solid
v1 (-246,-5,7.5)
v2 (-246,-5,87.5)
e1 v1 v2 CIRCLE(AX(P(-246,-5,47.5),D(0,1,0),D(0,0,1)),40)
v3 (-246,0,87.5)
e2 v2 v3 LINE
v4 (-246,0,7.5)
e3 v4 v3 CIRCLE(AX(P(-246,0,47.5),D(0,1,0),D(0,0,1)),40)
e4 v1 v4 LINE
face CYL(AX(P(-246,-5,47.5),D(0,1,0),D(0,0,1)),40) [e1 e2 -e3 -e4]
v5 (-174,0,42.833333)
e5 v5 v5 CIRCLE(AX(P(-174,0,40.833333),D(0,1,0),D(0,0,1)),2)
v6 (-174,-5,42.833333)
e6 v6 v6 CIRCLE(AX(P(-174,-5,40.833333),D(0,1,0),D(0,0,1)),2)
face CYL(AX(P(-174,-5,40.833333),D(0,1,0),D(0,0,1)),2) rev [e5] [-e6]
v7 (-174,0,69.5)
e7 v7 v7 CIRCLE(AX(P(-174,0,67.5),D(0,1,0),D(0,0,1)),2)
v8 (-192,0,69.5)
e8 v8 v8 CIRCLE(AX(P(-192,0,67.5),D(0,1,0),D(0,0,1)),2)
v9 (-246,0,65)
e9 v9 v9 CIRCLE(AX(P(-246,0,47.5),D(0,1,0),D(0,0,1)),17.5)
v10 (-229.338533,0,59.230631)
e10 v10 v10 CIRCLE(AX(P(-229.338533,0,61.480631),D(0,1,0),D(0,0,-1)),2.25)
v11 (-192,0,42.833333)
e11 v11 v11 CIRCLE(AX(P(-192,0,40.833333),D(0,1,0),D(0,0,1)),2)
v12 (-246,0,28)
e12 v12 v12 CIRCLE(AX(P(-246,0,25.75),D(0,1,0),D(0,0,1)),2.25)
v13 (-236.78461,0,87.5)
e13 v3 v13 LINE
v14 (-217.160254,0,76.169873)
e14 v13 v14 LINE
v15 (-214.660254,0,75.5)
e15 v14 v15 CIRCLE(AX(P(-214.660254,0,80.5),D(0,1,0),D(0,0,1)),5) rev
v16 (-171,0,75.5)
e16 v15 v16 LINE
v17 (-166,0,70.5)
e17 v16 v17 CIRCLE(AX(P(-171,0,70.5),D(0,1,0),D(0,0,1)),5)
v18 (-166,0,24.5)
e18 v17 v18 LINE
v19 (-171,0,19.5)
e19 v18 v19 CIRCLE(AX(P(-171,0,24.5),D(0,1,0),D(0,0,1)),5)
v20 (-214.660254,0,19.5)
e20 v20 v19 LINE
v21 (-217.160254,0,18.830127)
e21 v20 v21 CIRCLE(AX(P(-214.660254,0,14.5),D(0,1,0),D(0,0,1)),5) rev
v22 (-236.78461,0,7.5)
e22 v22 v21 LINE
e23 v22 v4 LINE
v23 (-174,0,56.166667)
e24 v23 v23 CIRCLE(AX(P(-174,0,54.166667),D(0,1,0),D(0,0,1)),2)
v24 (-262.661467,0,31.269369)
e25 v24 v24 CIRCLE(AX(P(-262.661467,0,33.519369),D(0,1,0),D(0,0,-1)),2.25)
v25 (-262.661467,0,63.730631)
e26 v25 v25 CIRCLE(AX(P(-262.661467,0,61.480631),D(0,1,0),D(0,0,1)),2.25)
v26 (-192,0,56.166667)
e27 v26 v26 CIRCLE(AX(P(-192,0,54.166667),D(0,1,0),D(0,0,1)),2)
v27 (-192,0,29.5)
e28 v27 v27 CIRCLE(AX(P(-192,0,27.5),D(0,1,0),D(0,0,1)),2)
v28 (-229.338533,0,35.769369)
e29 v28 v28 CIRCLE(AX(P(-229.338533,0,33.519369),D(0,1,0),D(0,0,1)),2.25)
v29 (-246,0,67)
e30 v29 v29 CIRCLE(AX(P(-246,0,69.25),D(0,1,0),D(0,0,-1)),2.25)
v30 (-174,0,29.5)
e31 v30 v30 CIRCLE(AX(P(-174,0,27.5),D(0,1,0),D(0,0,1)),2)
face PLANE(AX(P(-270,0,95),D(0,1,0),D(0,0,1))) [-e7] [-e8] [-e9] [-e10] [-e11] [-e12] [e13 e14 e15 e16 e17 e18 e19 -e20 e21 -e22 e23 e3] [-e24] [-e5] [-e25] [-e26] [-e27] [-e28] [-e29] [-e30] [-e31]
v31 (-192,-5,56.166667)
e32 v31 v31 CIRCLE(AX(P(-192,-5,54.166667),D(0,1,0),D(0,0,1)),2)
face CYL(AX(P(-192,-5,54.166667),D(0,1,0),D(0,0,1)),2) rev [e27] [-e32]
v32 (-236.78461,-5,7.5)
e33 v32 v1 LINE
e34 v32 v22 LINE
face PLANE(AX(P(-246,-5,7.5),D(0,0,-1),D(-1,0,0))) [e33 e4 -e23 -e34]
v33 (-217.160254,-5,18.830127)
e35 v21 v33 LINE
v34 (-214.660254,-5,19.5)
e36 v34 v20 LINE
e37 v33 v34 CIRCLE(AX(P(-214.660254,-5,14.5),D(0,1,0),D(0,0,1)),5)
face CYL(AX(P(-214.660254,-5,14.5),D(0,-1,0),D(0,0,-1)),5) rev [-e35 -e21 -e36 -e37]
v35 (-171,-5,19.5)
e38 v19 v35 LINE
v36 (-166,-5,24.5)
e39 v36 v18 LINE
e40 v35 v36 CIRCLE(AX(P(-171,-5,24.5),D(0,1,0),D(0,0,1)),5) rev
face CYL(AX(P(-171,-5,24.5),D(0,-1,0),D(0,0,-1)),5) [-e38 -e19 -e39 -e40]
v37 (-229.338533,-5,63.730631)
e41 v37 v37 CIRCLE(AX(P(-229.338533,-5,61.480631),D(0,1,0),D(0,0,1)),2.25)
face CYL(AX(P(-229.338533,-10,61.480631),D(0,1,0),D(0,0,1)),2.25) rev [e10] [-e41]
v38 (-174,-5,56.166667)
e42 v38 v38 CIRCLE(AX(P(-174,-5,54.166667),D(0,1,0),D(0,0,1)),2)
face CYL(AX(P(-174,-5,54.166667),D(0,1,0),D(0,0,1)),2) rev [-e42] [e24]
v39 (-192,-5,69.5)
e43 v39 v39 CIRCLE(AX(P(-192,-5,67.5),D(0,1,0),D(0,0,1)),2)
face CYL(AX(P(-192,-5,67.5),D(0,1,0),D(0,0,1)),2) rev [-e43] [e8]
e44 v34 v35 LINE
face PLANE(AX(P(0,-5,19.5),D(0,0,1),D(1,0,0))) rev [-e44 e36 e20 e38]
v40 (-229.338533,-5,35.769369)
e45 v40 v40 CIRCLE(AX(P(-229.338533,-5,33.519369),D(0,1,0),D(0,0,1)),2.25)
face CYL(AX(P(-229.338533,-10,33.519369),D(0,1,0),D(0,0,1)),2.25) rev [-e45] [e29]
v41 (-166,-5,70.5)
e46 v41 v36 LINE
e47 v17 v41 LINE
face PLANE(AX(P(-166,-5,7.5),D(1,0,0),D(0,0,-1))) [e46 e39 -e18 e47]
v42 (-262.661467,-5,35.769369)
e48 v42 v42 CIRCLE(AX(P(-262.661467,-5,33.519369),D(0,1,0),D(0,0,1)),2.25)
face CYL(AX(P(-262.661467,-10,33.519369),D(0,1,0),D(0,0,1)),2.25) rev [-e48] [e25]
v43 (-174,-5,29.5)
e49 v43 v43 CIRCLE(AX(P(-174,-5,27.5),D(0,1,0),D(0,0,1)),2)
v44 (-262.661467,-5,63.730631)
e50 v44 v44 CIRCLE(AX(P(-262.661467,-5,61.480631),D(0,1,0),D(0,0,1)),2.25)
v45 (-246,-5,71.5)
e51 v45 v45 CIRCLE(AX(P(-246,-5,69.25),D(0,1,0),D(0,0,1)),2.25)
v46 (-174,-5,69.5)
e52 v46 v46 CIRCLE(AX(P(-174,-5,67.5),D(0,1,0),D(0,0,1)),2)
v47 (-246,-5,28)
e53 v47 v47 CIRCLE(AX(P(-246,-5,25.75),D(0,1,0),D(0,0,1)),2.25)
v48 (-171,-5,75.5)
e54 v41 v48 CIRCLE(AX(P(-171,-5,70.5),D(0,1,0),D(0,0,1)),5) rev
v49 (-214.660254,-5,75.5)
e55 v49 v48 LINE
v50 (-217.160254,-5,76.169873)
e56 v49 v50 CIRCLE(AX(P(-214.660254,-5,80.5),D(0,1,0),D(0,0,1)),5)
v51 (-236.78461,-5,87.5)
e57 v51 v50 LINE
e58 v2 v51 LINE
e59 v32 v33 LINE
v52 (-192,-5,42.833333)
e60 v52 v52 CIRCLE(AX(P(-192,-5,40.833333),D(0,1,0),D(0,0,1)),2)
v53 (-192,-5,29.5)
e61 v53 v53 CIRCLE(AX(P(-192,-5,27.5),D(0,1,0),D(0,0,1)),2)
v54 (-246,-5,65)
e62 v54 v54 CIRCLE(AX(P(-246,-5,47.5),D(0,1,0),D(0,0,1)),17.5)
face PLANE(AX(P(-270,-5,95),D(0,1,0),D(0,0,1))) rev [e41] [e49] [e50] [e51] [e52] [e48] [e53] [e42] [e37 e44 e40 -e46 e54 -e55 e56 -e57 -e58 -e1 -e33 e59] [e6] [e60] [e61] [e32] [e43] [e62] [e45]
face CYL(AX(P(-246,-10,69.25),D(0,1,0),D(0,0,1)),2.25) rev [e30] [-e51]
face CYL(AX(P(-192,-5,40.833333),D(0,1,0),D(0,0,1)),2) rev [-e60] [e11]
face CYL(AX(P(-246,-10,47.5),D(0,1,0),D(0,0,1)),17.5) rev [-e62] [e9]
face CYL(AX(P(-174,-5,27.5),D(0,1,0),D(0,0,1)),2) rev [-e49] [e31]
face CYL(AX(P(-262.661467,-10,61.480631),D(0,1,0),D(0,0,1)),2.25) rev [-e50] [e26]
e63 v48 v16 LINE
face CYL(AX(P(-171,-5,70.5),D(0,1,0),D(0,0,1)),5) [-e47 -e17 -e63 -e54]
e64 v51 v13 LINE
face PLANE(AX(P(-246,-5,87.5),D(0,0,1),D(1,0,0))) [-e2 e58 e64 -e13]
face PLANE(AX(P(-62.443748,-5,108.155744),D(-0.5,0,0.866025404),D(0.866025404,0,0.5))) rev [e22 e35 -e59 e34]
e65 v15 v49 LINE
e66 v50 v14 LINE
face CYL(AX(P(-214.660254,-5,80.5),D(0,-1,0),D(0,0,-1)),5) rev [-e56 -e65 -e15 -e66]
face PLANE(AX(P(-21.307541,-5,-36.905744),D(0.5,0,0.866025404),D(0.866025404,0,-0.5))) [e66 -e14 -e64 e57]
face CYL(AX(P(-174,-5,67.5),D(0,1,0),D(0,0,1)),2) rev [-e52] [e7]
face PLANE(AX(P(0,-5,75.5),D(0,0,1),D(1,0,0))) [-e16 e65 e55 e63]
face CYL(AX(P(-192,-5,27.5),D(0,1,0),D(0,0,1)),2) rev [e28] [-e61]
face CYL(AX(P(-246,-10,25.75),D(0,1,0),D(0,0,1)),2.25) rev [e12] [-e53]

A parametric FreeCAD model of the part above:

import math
import FreeCAD as App
import Part
import Sketcher
from FreeCAD import Vector
Q = App.Units.Quantity


def edges_at(feature, points):
    """Names of the edges that pass closest to the given points."""
    edges = feature.Shape.Edges
    near = lambda p: min(range(len(edges)), key=lambda i: edges[i].distToShape(Part.Vertex(*p))[0])
    return sorted({f"Edge{near(p) + 1}" for p in points})


def add_polygon(sketch, points):
    """Adds a closed chain of lines whose ends are joined by coincident constraints."""
    first, n = sketch.GeometryCount, len(points)
    for a, b in zip(points, points[1:] + points[:1]):
        sketch.addGeometry(Part.LineSegment(App.Vector(*a, 0), App.Vector(*b, 0)), False)
    for i in range(n):
        sketch.addConstraint(Sketcher.Constraint("Coincident", first + i, 2, first + (i + 1) % n, 1))

doc = App.newDocument("Part")
body = doc.addObject("PartDesign::Body", "Body")

sketch1 = doc.addObject("Sketcher::SketchObject", "Sketch")
body.addObject(sketch1)
sketch1.AttachmentSupport = (doc.XY_Plane, [""])
sketch1.MapMode = "FlatFace"
add_polygon(sketch1, [(-270, 0), (-270, -5), (0, -5), (0, 0)])
sketch1.addConstraint([
    Sketcher.Constraint("Vertical", 0),
    Sketcher.Constraint("Horizontal", 1),
    Sketcher.Constraint("Vertical", 2),
    Sketcher.Constraint("Horizontal", 3),
    Sketcher.Constraint("Coincident", 2, 2, -1, 1),
    Sketcher.Constraint("DistanceX", 1, 1, 1, 2, 270.0),
    Sketcher.Constraint("DistanceY", 0, 2, 0, 1, 5.0),
])
pad1 = doc.addObject("PartDesign::Pad", "Pad")
body.addObject(pad1)
pad1.Profile = sketch1
pad1.Length = 95

sketch2 = doc.addObject("Sketcher::SketchObject", "Sketch001")
body.addObject(sketch2)
sketch2.AttachmentSupport = (doc.XZ_Plane, [""])
sketch2.MapMode = "FlatFace"
sketch2.addGeometry([
    Part.Circle(Vector(-246, 25.8, 0), Vector(0, 0, 1), 2.2),
    Part.Circle(Vector(-229.3, 33.5, 0), Vector(0, 0, 1), 2.2),
    Part.Circle(Vector(-262.7, 33.5, 0), Vector(0, 0, 1), 2.2),
    Part.Circle(Vector(-262.7, 61.5, 0), Vector(0, 0, 1), 2.2),
    Part.Circle(Vector(-246, 69.2, 0), Vector(0, 0, 1), 2.2),
    Part.Circle(Vector(-229.3, 61.5, 0), Vector(0, 0, 1), 2.2),
    Part.Circle(Vector(-246, 47.5, 0), Vector(0, 0, 1), 17.5),
], False)
sketch2.addConstraint([
    Sketcher.Constraint("Equal", 0, 1),
    Sketcher.Constraint("Equal", 1, 2),
    Sketcher.Constraint("Equal", 2, 3),
    Sketcher.Constraint("Equal", 3, 4),
    Sketcher.Constraint("Equal", 4, 5),
    Sketcher.Constraint("Horizontal", 1, 3, 2, 3),
    Sketcher.Constraint("Horizontal", 3, 3, 5, 3),
    Sketcher.Constraint("Vertical", 2, 3, 3, 3),
    Sketcher.Constraint("Vertical", 0, 3, 4, 3),
    Sketcher.Constraint("Vertical", 1, 3, 5, 3),
    Sketcher.Constraint("Vertical", 4, 3, 6, 3),
    Sketcher.Constraint("Diameter", 6, 35.0),
    Sketcher.Constraint("Diameter", 0, 4.5),
    Sketcher.Constraint("DistanceX", 0, 3, -1, 1, 246.0),
    Sketcher.Constraint("DistanceY", -1, 1, 6, 3, 47.5),
    Sketcher.Constraint("DistanceY", 0, 3, 4, 3, 43.5),
    Sketcher.Constraint("DistanceY", -1, 1, 0, 3, 25.75),
    Sketcher.Constraint("DistanceY", -1, 1, 1, 3, 33.519369),
    Sketcher.Constraint("DistanceY", -1, 1, 3, 3, 61.480631),
    Sketcher.Constraint("DistanceX", 1, 3, -1, 1, 229.338533),
    Sketcher.Constraint("DistanceX", 2, 3, -1, 1, 262.661467),
])
pocket1 = doc.addObject("PartDesign::Pocket", "Pocket")
body.addObject(pocket1)
pocket1.Profile = sketch2
pocket1.Length = 10
pocket1.Reversed = True

sketch3 = doc.addObject("Sketcher::SketchObject", "Sketch002")
body.addObject(sketch3)
sketch3.AttachmentSupport = (doc.XZ_Plane, [""])
sketch3.MapMode = "FlatFace"
add_polygon(sketch3, [(-270, 75), (-270, 95), (-200, 95), (-200, 75)])
add_polygon(sketch3, [(-270, 0), (-270, 20), (-200, 20), (-200, 0)])
sketch3.addGeometry(Part.LineSegment(Vector(-190, 10, 0), Vector(-190, 34.8, 0)), False)
sketch3.addGeometry(Part.ArcOfCircle(Part.Circle(Vector(-187, 34.8, 0), Vector(0, 0, 1), 3), math.radians(45), math.radians(180)), False)
sketch3.addGeometry(Part.LineSegment(Vector(-184.9, 36.9, 0), Vector(-160.1, 12.1, 0)), False)
sketch3.addGeometry(Part.ArcOfCircle(Part.Circle(Vector(-162.2, 10, 0), Vector(0, 0, 1), 3), math.radians(-90), math.radians(45)), False)
sketch3.addGeometry(Part.LineSegment(Vector(-162.2, 7, 0), Vector(-187, 7, 0)), False)
sketch3.addGeometry(Part.ArcOfCircle(Part.Circle(Vector(-187, 10, 0), Vector(0, 0, 1), 3), math.radians(180), math.radians(270)), False)
sketch3.addGeometry(Part.LineSegment(Vector(-154.1, 12.1, 0), Vector(-178.9, 36.9, 0)), False)
sketch3.addGeometry(Part.ArcOfCircle(Part.Circle(Vector(-176.8, 39, 0), Vector(0, 0, 1), 3), math.radians(90), math.radians(225)), False)
sketch3.addGeometry(Part.LineSegment(Vector(-176.8, 42, 0), Vector(-152, 42, 0)), False)
sketch3.addGeometry(Part.ArcOfCircle(Part.Circle(Vector(-152, 39, 0), Vector(0, 0, 1), 3), math.radians(0), math.radians(90)), False)
sketch3.addGeometry(Part.LineSegment(Vector(-149, 39, 0), Vector(-149, 14.2, 0)), False)
sketch3.addGeometry(Part.ArcOfCircle(Part.Circle(Vector(-152, 14.2, 0), Vector(0, 0, 1), 3), math.radians(-135), math.radians(0)), False)
sketch3.addGeometry(Part.LineSegment(Vector(-112.2, 7, 0), Vector(-137, 7, 0)), False)
sketch3.addGeometry(Part.ArcOfCircle(Part.Circle(Vector(-137, 10, 0), Vector(0, 0, 1), 3), math.radians(180), math.radians(270)), False)
sketch3.addGeometry(Part.LineSegment(Vector(-140, 10, 0), Vector(-140, 34.8, 0)), False)
sketch3.addGeometry(Part.ArcOfCircle(Part.Circle(Vector(-137, 34.8, 0), Vector(0, 0, 1), 3), math.radians(45), math.radians(180)), False)
sketch3.addGeometry(Part.LineSegment(Vector(-134.9, 36.9, 0), Vector(-110.1, 12.1, 0)), False)
sketch3.addGeometry(Part.ArcOfCircle(Part.Circle(Vector(-112.2, 10, 0), Vector(0, 0, 1), 3), math.radians(-90), math.radians(45)), False)
sketch3.addGeometry(Part.LineSegment(Vector(-99, 39, 0), Vector(-99, 14.2, 0)), False)
sketch3.addGeometry(Part.ArcOfCircle(Part.Circle(Vector(-102, 14.2, 0), Vector(0, 0, 1), 3), math.radians(-135), math.radians(0)), False)
sketch3.addGeometry(Part.LineSegment(Vector(-104.1, 12.1, 0), Vector(-128.9, 36.9, 0)), False)
sketch3.addGeometry(Part.ArcOfCircle(Part.Circle(Vector(-126.8, 39, 0), Vector(0, 0, 1), 3), math.radians(90), math.radians(225)), False)
sketch3.addGeometry(Part.LineSegment(Vector(-126.8, 42, 0), Vector(-102, 42, 0)), False)
sketch3.addGeometry(Part.ArcOfCircle(Part.Circle(Vector(-102, 39, 0), Vector(0, 0, 1), 3), math.radians(0), math.radians(90)), False)
sketch3.addGeometry(Part.LineSegment(Vector(-112.2, 52, 0), Vector(-137, 52, 0)), False)
sketch3.addGeometry(Part.ArcOfCircle(Part.Circle(Vector(-137, 55, 0), Vector(0, 0, 1), 3), math.radians(180), math.radians(270)), False)
sketch3.addGeometry(Part.LineSegment(Vector(-140, 55, 0), Vector(-140, 79.8, 0)), False)
sketch3.addGeometry(Part.ArcOfCircle(Part.Circle(Vector(-137, 79.8, 0), Vector(0, 0, 1), 3), math.radians(45), math.radians(180)), False)
sketch3.addGeometry(Part.LineSegment(Vector(-134.9, 81.9, 0), Vector(-110.1, 57.1, 0)), False)
sketch3.addGeometry(Part.ArcOfCircle(Part.Circle(Vector(-112.2, 55, 0), Vector(0, 0, 1), 3), math.radians(-90), math.radians(45)), False)
sketch3.addGeometry(Part.LineSegment(Vector(-99, 84, 0), Vector(-99, 59.2, 0)), False)
sketch3.addGeometry(Part.ArcOfCircle(Part.Circle(Vector(-102, 59.2, 0), Vector(0, 0, 1), 3), math.radians(-135), math.radians(0)), False)
sketch3.addGeometry(Part.LineSegment(Vector(-104.1, 57.1, 0), Vector(-128.9, 81.9, 0)), False)
sketch3.addGeometry(Part.ArcOfCircle(Part.Circle(Vector(-126.8, 84, 0), Vector(0, 0, 1), 3), math.radians(90), math.radians(225)), False)
sketch3.addGeometry(Part.LineSegment(Vector(-126.8, 87, 0), Vector(-102, 87, 0)), False)
sketch3.addGeometry(Part.ArcOfCircle(Part.Circle(Vector(-102, 84, 0), Vector(0, 0, 1), 3), math.radians(0), math.radians(90)), False)
sketch3.addGeometry(Part.LineSegment(Vector(-162.2, 52, 0), Vector(-187, 52, 0)), False)
sketch3.addGeometry(Part.ArcOfCircle(Part.Circle(Vector(-187, 55, 0), Vector(0, 0, 1), 3), math.radians(180), math.radians(270)), False)
sketch3.addGeometry(Part.LineSegment(Vector(-190, 55, 0), Vector(-190, 79.8, 0)), False)
sketch3.addGeometry(Part.ArcOfCircle(Part.Circle(Vector(-187, 79.8, 0), Vector(0, 0, 1), 3), math.radians(45), math.radians(180)), False)
sketch3.addGeometry(Part.LineSegment(Vector(-184.9, 81.9, 0), Vector(-160.1, 57.1, 0)), False)
sketch3.addGeometry(Part.ArcOfCircle(Part.Circle(Vector(-162.2, 55, 0), Vector(0, 0, 1), 3), math.radians(-90), math.radians(45)), False)
sketch3.addGeometry(Part.LineSegment(Vector(-149, 84, 0), Vector(-149, 59.2, 0)), False)
sketch3.addGeometry(Part.ArcOfCircle(Part.Circle(Vector(-152, 59.2, 0), Vector(0, 0, 1), 3), math.radians(-135), math.radians(0)), False)
sketch3.addGeometry(Part.LineSegment(Vector(-154.1, 57.1, 0), Vector(-178.9, 81.9, 0)), False)
sketch3.addGeometry(Part.ArcOfCircle(Part.Circle(Vector(-176.8, 84, 0), Vector(0, 0, 1), 3), math.radians(90), math.radians(225)), False)
sketch3.addGeometry(Part.LineSegment(Vector(-176.8, 87, 0), Vector(-152, 87, 0)), False)
sketch3.addGeometry(Part.ArcOfCircle(Part.Circle(Vector(-152, 84, 0), Vector(0, 0, 1), 3), math.radians(0), math.radians(90)), False)
sketch3.addGeometry(Part.LineSegment(Vector(-62.2, 7, 0), Vector(-87, 7, 0)), False)
sketch3.addGeometry(Part.ArcOfCircle(Part.Circle(Vector(-87, 10, 0), Vector(0, 0, 1), 3), math.radians(180), math.radians(270)), False)
sketch3.addGeometry(Part.LineSegment(Vector(-90, 10, 0), Vector(-90, 34.8, 0)), False)
sketch3.addGeometry(Part.ArcOfCircle(Part.Circle(Vector(-87, 34.8, 0), Vector(0, 0, 1), 3), math.radians(45), math.radians(180)), False)
sketch3.addGeometry(Part.LineSegment(Vector(-84.9, 36.9, 0), Vector(-60.1, 12.1, 0)), False)
sketch3.addGeometry(Part.ArcOfCircle(Part.Circle(Vector(-62.2, 10, 0), Vector(0, 0, 1), 3), math.radians(-90), math.radians(45)), False)
sketch3.addGeometry(Part.LineSegment(Vector(-49, 39, 0), Vector(-49, 14.2, 0)), False)
sketch3.addGeometry(Part.ArcOfCircle(Part.Circle(Vector(-52, 14.2, 0), Vector(0, 0, 1), 3), math.radians(-135), math.radians(0)), False)
sketch3.addGeometry(Part.LineSegment(Vector(-54.1, 12.1, 0), Vector(-78.9, 36.9, 0)), False)
sketch3.addGeometry(Part.ArcOfCircle(Part.Circle(Vector(-76.8, 39, 0), Vector(0, 0, 1), 3), math.radians(90), math.radians(225)), False)
sketch3.addGeometry(Part.LineSegment(Vector(-76.8, 42, 0), Vector(-52, 42, 0)), False)
sketch3.addGeometry(Part.ArcOfCircle(Part.Circle(Vector(-52, 39, 0), Vector(0, 0, 1), 3), math.radians(0), math.radians(90)), False)
sketch3.addGeometry(Part.LineSegment(Vector(-62.2, 52, 0), Vector(-87, 52, 0)), False)
sketch3.addGeometry(Part.ArcOfCircle(Part.Circle(Vector(-87, 55, 0), Vector(0, 0, 1), 3), math.radians(180), math.radians(270)), False)
sketch3.addGeometry(Part.LineSegment(Vector(-90, 55, 0), Vector(-90, 79.8, 0)), False)
sketch3.addGeometry(Part.ArcOfCircle(Part.Circle(Vector(-87, 79.8, 0), Vector(0, 0, 1), 3), math.radians(45), math.radians(180)), False)
sketch3.addGeometry(Part.LineSegment(Vector(-84.9, 81.9, 0), Vector(-60.1, 57.1, 0)), False)
sketch3.addGeometry(Part.ArcOfCircle(Part.Circle(Vector(-62.2, 55, 0), Vector(0, 0, 1), 3), math.radians(-90), math.radians(45)), False)
sketch3.addGeometry(Part.LineSegment(Vector(-49, 84, 0), Vector(-49, 59.2, 0)), False)
sketch3.addGeometry(Part.ArcOfCircle(Part.Circle(Vector(-52, 59.2, 0), Vector(0, 0, 1), 3), math.radians(-135), math.radians(0)), False)
sketch3.addGeometry(Part.LineSegment(Vector(-54.1, 57.1, 0), Vector(-78.9, 81.9, 0)), False)
sketch3.addGeometry(Part.ArcOfCircle(Part.Circle(Vector(-76.8, 84, 0), Vector(0, 0, 1), 3), math.radians(90), math.radians(225)), False)
sketch3.addGeometry(Part.LineSegment(Vector(-76.8, 87, 0), Vector(-52, 87, 0)), False)
sketch3.addGeometry(Part.ArcOfCircle(Part.Circle(Vector(-52, 84, 0), Vector(0, 0, 1), 3), math.radians(0), math.radians(90)), False)
sketch3.addConstraint([
    Sketcher.Constraint("Tangent", 8, 2, 9, 2),
    Sketcher.Constraint("Tangent", 9, 1, 10, 1),
    Sketcher.Constraint("Tangent", 10, 2, 11, 2),
    Sketcher.Constraint("Tangent", 11, 1, 12, 1),
    Sketcher.Constraint("Tangent", 12, 2, 13, 2),
    Sketcher.Constraint("Tangent", 13, 1, 8, 1),
    Sketcher.Constraint("Tangent", 14, 2, 15, 2),
    Sketcher.Constraint("Tangent", 15, 1, 16, 1),
    Sketcher.Constraint("Tangent", 16, 2, 17, 2),
    Sketcher.Constraint("Tangent", 17, 1, 18, 1),
    Sketcher.Constraint("Tangent", 18, 2, 19, 2),
    Sketcher.Constraint("Tangent", 19, 1, 14, 1),
    Sketcher.Constraint("Tangent", 20, 2, 21, 2),
    Sketcher.Constraint("Tangent", 21, 1, 22, 1),
    Sketcher.Constraint("Tangent", 22, 2, 23, 2),
    Sketcher.Constraint("Tangent", 23, 1, 24, 1),
    Sketcher.Constraint("Tangent", 24, 2, 25, 2),
    Sketcher.Constraint("Tangent", 25, 1, 20, 1),
    Sketcher.Constraint("Tangent", 26, 2, 27, 2),
    Sketcher.Constraint("Tangent", 27, 1, 28, 1),
    Sketcher.Constraint("Tangent", 28, 2, 29, 2),
    Sketcher.Constraint("Tangent", 29, 1, 30, 1),
    Sketcher.Constraint("Tangent", 30, 2, 31, 2),
    Sketcher.Constraint("Tangent", 31, 1, 26, 1),
    Sketcher.Constraint("Tangent", 32, 2, 33, 2),
    Sketcher.Constraint("Tangent", 33, 1, 34, 1),
    Sketcher.Constraint("Tangent", 34, 2, 35, 2),
    Sketcher.Constraint("Tangent", 35, 1, 36, 1),
    Sketcher.Constraint("Tangent", 36, 2, 37, 2),
    Sketcher.Constraint("Tangent", 37, 1, 32, 1),
    Sketcher.Constraint("Tangent", 38, 2, 39, 2),
    Sketcher.Constraint("Tangent", 39, 1, 40, 1),
    Sketcher.Constraint("Tangent", 40, 2, 41, 2),
    Sketcher.Constraint("Tangent", 41, 1, 42, 1),
    Sketcher.Constraint("Tangent", 42, 2, 43, 2),
    Sketcher.Constraint("Tangent", 43, 1, 38, 1),
    Sketcher.Constraint("Tangent", 44, 2, 45, 2),
    Sketcher.Constraint("Tangent", 45, 1, 46, 1),
    Sketcher.Constraint("Tangent", 46, 2, 47, 2),
    Sketcher.Constraint("Tangent", 47, 1, 48, 1),
    Sketcher.Constraint("Tangent", 48, 2, 49, 2),
    Sketcher.Constraint("Tangent", 49, 1, 44, 1),
    Sketcher.Constraint("Tangent", 50, 2, 51, 2),
    Sketcher.Constraint("Tangent", 51, 1, 52, 1),
    Sketcher.Constraint("Tangent", 52, 2, 53, 2),
    Sketcher.Constraint("Tangent", 53, 1, 54, 1),
    Sketcher.Constraint("Tangent", 54, 2, 55, 2),
    Sketcher.Constraint("Tangent", 55, 1, 50, 1),
    Sketcher.Constraint("Tangent", 56, 2, 57, 2),
    Sketcher.Constraint("Tangent", 57, 1, 58, 1),
    Sketcher.Constraint("Tangent", 58, 2, 59, 2),
    Sketcher.Constraint("Tangent", 59, 1, 60, 1),
    Sketcher.Constraint("Tangent", 60, 2, 61, 2),
    Sketcher.Constraint("Tangent", 61, 1, 56, 1),
    Sketcher.Constraint("Tangent", 62, 2, 63, 2),
    Sketcher.Constraint("Tangent", 63, 1, 64, 1),
    Sketcher.Constraint("Tangent", 64, 2, 65, 2),
    Sketcher.Constraint("Tangent", 65, 1, 66, 1),
    Sketcher.Constraint("Tangent", 66, 2, 67, 2),
    Sketcher.Constraint("Tangent", 67, 1, 62, 1),
    Sketcher.Constraint("Tangent", 68, 2, 69, 2),
    Sketcher.Constraint("Tangent", 69, 1, 70, 1),
    Sketcher.Constraint("Tangent", 70, 2, 71, 2),
    Sketcher.Constraint("Tangent", 71, 1, 72, 1),
    Sketcher.Constraint("Tangent", 72, 2, 73, 2),
    Sketcher.Constraint("Tangent", 73, 1, 68, 1),
    Sketcher.Constraint("Tangent", 74, 2, 75, 2),
    Sketcher.Constraint("Tangent", 75, 1, 76, 1),
    Sketcher.Constraint("Tangent", 76, 2, 77, 2),
    Sketcher.Constraint("Tangent", 77, 1, 78, 1),
    Sketcher.Constraint("Tangent", 78, 2, 79, 2),
    Sketcher.Constraint("Tangent", 79, 1, 74, 1),
    Sketcher.Constraint("Vertical", 0),
    Sketcher.Constraint("Horizontal", 1),
    Sketcher.Constraint("Vertical", 2),
    Sketcher.Constraint("Horizontal", 3),
    Sketcher.Constraint("Vertical", 4),
    Sketcher.Constraint("Horizontal", 5),
    Sketcher.Constraint("Vertical", 6),
    Sketcher.Constraint("Horizontal", 7),
    Sketcher.Constraint("Vertical", 8),
    Sketcher.Constraint("Horizontal", 12),
    Sketcher.Constraint("Horizontal", 16),
    Sketcher.Constraint("Vertical", 18),
    Sketcher.Constraint("Horizontal", 20),
    Sketcher.Constraint("Vertical", 22),
    Sketcher.Constraint("Vertical", 26),
    Sketcher.Constraint("Horizontal", 30),
    Sketcher.Constraint("Horizontal", 32),
    Sketcher.Constraint("Vertical", 34),
    Sketcher.Constraint("Vertical", 38),
    Sketcher.Constraint("Horizontal", 42),
    Sketcher.Constraint("Horizontal", 44),
    Sketcher.Constraint("Vertical", 46),
    Sketcher.Constraint("Vertical", 50),
    Sketcher.Constraint("Horizontal", 54),
    Sketcher.Constraint("Horizontal", 56),
    Sketcher.Constraint("Vertical", 58),
    Sketcher.Constraint("Vertical", 62),
    Sketcher.Constraint("Horizontal", 66),
    Sketcher.Constraint("Horizontal", 68),
    Sketcher.Constraint("Vertical", 70),
    Sketcher.Constraint("Vertical", 74),
    Sketcher.Constraint("Horizontal", 78),
    Sketcher.Constraint("Equal", 9, 11),
    Sketcher.Constraint("Equal", 11, 13),
    Sketcher.Constraint("Equal", 13, 15),
    Sketcher.Constraint("Equal", 15, 17),
    Sketcher.Constraint("Equal", 17, 19),
    Sketcher.Constraint("Equal", 19, 21),
    Sketcher.Constraint("Equal", 21, 23),
    Sketcher.Constraint("Equal", 23, 25),
    Sketcher.Constraint("Equal", 25, 27),
    Sketcher.Constraint("Equal", 27, 29),
    Sketcher.Constraint("Equal", 29, 31),
    Sketcher.Constraint("Equal", 31, 33),
    Sketcher.Constraint("Equal", 33, 35),
    Sketcher.Constraint("Equal", 35, 37),
    Sketcher.Constraint("Equal", 37, 39),
    Sketcher.Constraint("Equal", 39, 41),
    Sketcher.Constraint("Equal", 41, 43),
    Sketcher.Constraint("Equal", 43, 45),
    Sketcher.Constraint("Equal", 45, 47),
    Sketcher.Constraint("Equal", 47, 49),
    Sketcher.Constraint("Equal", 49, 51),
    Sketcher.Constraint("Equal", 51, 53),
    Sketcher.Constraint("Equal", 53, 55),
    Sketcher.Constraint("Equal", 55, 57),
    Sketcher.Constraint("Equal", 57, 59),
    Sketcher.Constraint("Equal", 59, 61),
    Sketcher.Constraint("Equal", 61, 63),
    Sketcher.Constraint("Equal", 63, 65),
    Sketcher.Constraint("Equal", 65, 67),
    Sketcher.Constraint("Equal", 67, 69),
    Sketcher.Constraint("Equal", 69, 71),
    Sketcher.Constraint("Equal", 71, 73),
    Sketcher.Constraint("Equal", 73, 75),
    Sketcher.Constraint("Equal", 75, 77),
    Sketcher.Constraint("Equal", 77, 79),
    Sketcher.Constraint("PointOnObject", 6, 2, -1),
    Sketcher.Constraint("Parallel", 10, 14),
    Sketcher.Constraint("Parallel", 14, 24),
    Sketcher.Constraint("Parallel", 24, 28),
    Sketcher.Constraint("Parallel", 28, 36),
    Sketcher.Constraint("Parallel", 36, 40),
    Sketcher.Constraint("Parallel", 40, 48),
    Sketcher.Constraint("Parallel", 48, 52),
    Sketcher.Constraint("Parallel", 52, 60),
    Sketcher.Constraint("Parallel", 60, 64),
    Sketcher.Constraint("Parallel", 64, 72),
    Sketcher.Constraint("Parallel", 72, 76),
    Sketcher.Constraint("Horizontal", 13, 3, 21, 3),
    Sketcher.Constraint("Horizontal", 9, 3, 23, 3),
    Sketcher.Constraint("Horizontal", 19, 3, 27, 3),
    Sketcher.Constraint("Horizontal", 17, 3, 29, 3),
    Sketcher.Constraint("Horizontal", 37, 3, 45, 3),
    Sketcher.Constraint("Horizontal", 35, 3, 47, 3),
    Sketcher.Constraint("Horizontal", 39, 3, 51, 3),
    Sketcher.Constraint("Horizontal", 43, 3, 53, 3),
    Sketcher.Constraint("Horizontal", 25, 3, 57, 3),
    Sketcher.Constraint("Horizontal", 23, 3, 59, 3),
    Sketcher.Constraint("Horizontal", 27, 3, 63, 3),
    Sketcher.Constraint("Horizontal", 31, 3, 65, 3),
    Sketcher.Constraint("Horizontal", 49, 3, 69, 3),
    Sketcher.Constraint("Horizontal", 47, 3, 71, 3),
    Sketcher.Constraint("Horizontal", 51, 3, 75, 3),
    Sketcher.Constraint("Horizontal", 55, 3, 77, 3),
    Sketcher.Constraint("Horizontal", 9, 1, 14, 2),
    Sketcher.Constraint("Horizontal", 10, 2, 19, 1),
    Sketcher.Constraint("Horizontal", 36, 2, 39, 1),
    Sketcher.Constraint("Horizontal", 35, 1, 40, 2),
    Sketcher.Constraint("Vertical", 23, 3, 33, 3),
    Sketcher.Constraint("Vertical", 25, 3, 37, 3),
    Sketcher.Constraint("Vertical", 31, 3, 39, 3),
    Sketcher.Constraint("Vertical", 13, 3, 45, 3),
    Sketcher.Constraint("Vertical", 19, 3, 51, 3),
    Sketcher.Constraint("Vertical", 59, 3, 69, 3),
    Sketcher.Constraint("Vertical", 67, 3, 75, 3),
    Sketcher.Constraint("Vertical", 3, 2, 4, 2),
    Sketcher.Constraint("Vertical", 2, 2, 5, 2),
    Sketcher.Constraint("Equal", 2, 4),
    Sketcher.Constraint("Equal", 78, 8),
    Sketcher.Constraint("Radius", 9, 3.0),
    Sketcher.Constraint("DistanceX", 1, 1, 1, 2, 70.0),
    Sketcher.Constraint("DistanceY", 0, 1, 0, 2, 20.0),
    Sketcher.Constraint("DistanceX", 9, 3, -1, 1, 187.0),
    Sketcher.Constraint("DistanceY", -1, 1, 11, 3, 10.0),
    Sketcher.Constraint("DistanceY", -1, 1, 15, 3, 39.0),
    Sketcher.Constraint("DistanceX", 17, 3, -1, 1, 152.0),
    Sketcher.Constraint("DistanceX", 21, 3, -1, 1, 137.0),
    Sketcher.Constraint("DistanceX", 27, 3, -1, 1, 102.0),
    Sketcher.Constraint("DistanceY", -1, 1, 33, 3, 55.0),
    Sketcher.Constraint("DistanceX", 57, 3, -1, 1, 87.0),
    Sketcher.Constraint("DistanceX", 63, 3, -1, 1, 52.0),
    Sketcher.Constraint("DistanceX", 0, 2, -1, 1, 270.0),
    Sketcher.Constraint("DistanceY", -1, 1, 0, 2, 95.0),
])
pocket2 = doc.addObject("PartDesign::Pocket", "Pocket001")
body.addObject(pocket2)
pocket2.Profile = sketch3
pocket2.Length = 10
pocket2.Reversed = True

sketch4 = doc.addObject("Sketcher::SketchObject", "Sketch003")
body.addObject(sketch4)
sketch4.AttachmentSupport = (doc.XZ_Plane, [""])
sketch4.MapMode = "FlatFace"
add_polygon(sketch4, [(-214, -12), (-214, 118), (6, 118), (6, -12)])
sketch4.addConstraint([
    Sketcher.Constraint("Vertical", 0),
    Sketcher.Constraint("Horizontal", 1),
    Sketcher.Constraint("Vertical", 2),
    Sketcher.Constraint("Horizontal", 3),
    Sketcher.Constraint("DistanceX", 1, 1, 1, 2, 219.864117),
    Sketcher.Constraint("DistanceY", 0, 1, 0, 2, 129.686347),
    Sketcher.Constraint("DistanceY", 2, 2, -1, 1, 11.65126),
    Sketcher.Constraint("DistanceX", 0, 2, -1, 1, 214.017155),
])
pocket3 = doc.addObject("PartDesign::Pocket", "Pocket002")
body.addObject(pocket3)
pocket3.Profile = sketch4
pocket3.Length = 10
pocket3.Reversed = True

sketch5 = doc.addObject("Sketcher::SketchObject", "Sketch004")
body.addObject(sketch5)
sketch5.AttachmentSupport = (doc.XZ_Plane, [""])
sketch5.MapMode = "FlatFace"
sketch5.addGeometry(Part.LineSegment(Vector(-166, 8, 0), Vector(-246, 8, 0)), False)
sketch5.addGeometry(Part.ArcOfCircle(Part.Circle(Vector(-246, 48, 0), Vector(0, 0, 1), 40), math.radians(90), math.radians(270)), False)
sketch5.addGeometry(Part.LineSegment(Vector(-246, 88, 0), Vector(-166, 88, 0)), False)
sketch5.addGeometry(Part.LineSegment(Vector(-166, 88, 0), Vector(-166, 8, 0)), False)
add_polygon(sketch5, [(-270, 75), (-270, 20), (-214, 20), (-214, 75)])
sketch5.addConstraint([
    Sketcher.Constraint("Tangent", 0, 2, 1, 2),
    Sketcher.Constraint("Tangent", 1, 1, 2, 1),
    Sketcher.Constraint("Coincident", 2, 2, 3, 1),
    Sketcher.Constraint("Coincident", 3, 2, 0, 1),
    Sketcher.Constraint("Horizontal", 0),
    Sketcher.Constraint("Horizontal", 2),
    Sketcher.Constraint("Vertical", 3),
    Sketcher.Constraint("Vertical", 4),
    Sketcher.Constraint("Horizontal", 5),
    Sketcher.Constraint("Vertical", 6),
    Sketcher.Constraint("Horizontal", 7),
    Sketcher.Constraint("Equal", 2, 3),
    Sketcher.Constraint("Radius", 1, 40.0),
    Sketcher.Constraint("DistanceY", 4, 2, 4, 1, 55.0),
    Sketcher.Constraint("DistanceX", 1, 3, -1, 1, 246.0),
    Sketcher.Constraint("DistanceX", 4, 2, -1, 1, 270.0),
    Sketcher.Constraint("DistanceY", -1, 1, 4, 2, 20.0),
    Sketcher.Constraint("DistanceY", -1, 1, 1, 3, 47.5),
    Sketcher.Constraint("DistanceX", 5, 1, 5, 2, 55.982845),
])
pad2 = doc.addObject("PartDesign::Pad", "Pad001")
body.addObject(pad2)
pad2.Profile = sketch5
pad2.Length = 5

sketch6 = doc.addObject("Sketcher::SketchObject", "Sketch005")
body.addObject(sketch6)
sketch6.AttachmentSupport = (doc.XZ_Plane, [""])
sketch6.MapMode = "FlatFace"
sketch6.addGeometry([
    Part.Circle(Vector(-192, 27.5, 0), Vector(0, 0, 1), 2),
    Part.Circle(Vector(-174, 27.5, 0), Vector(0, 0, 1), 2),
    Part.Circle(Vector(-174, 40.8, 0), Vector(0, 0, 1), 2),
    Part.Circle(Vector(-174, 54.2, 0), Vector(0, 0, 1), 2),
    Part.Circle(Vector(-174, 67.5, 0), Vector(0, 0, 1), 2),
    Part.Circle(Vector(-192, 40.8, 0), Vector(0, 0, 1), 2),
    Part.Circle(Vector(-192, 54.2, 0), Vector(0, 0, 1), 2),
    Part.Circle(Vector(-192, 67.5, 0), Vector(0, 0, 1), 2),
], False)
sketch6.addConstraint([
    Sketcher.Constraint("Equal", 0, 1),
    Sketcher.Constraint("Equal", 1, 2),
    Sketcher.Constraint("Equal", 2, 3),
    Sketcher.Constraint("Equal", 3, 4),
    Sketcher.Constraint("Equal", 4, 5),
    Sketcher.Constraint("Equal", 5, 6),
    Sketcher.Constraint("Equal", 6, 7),
    Sketcher.Constraint("Horizontal", 0, 3, 1, 3),
    Sketcher.Constraint("Horizontal", 2, 3, 5, 3),
    Sketcher.Constraint("Horizontal", 3, 3, 6, 3),
    Sketcher.Constraint("Horizontal", 4, 3, 7, 3),
    Sketcher.Constraint("Vertical", 1, 3, 2, 3),
    Sketcher.Constraint("Vertical", 2, 3, 3, 3),
    Sketcher.Constraint("Vertical", 3, 3, 4, 3),
    Sketcher.Constraint("Vertical", 0, 3, 5, 3),
    Sketcher.Constraint("Vertical", 5, 3, 6, 3),
    Sketcher.Constraint("Vertical", 6, 3, 7, 3),
    Sketcher.Constraint("Diameter", 0, 4.0),
    Sketcher.Constraint("DistanceX", 0, 3, -1, 1, 192.0),
    Sketcher.Constraint("DistanceX", 1, 3, -1, 1, 174.0),
    Sketcher.Constraint("DistanceY", 1, 3, 4, 3, 40.0),
    Sketcher.Constraint("DistanceY", -1, 1, 0, 3, 27.5),
    Sketcher.Constraint("DistanceY", -1, 1, 2, 3, 40.833333),
    Sketcher.Constraint("DistanceY", -1, 1, 3, 3, 54.166667),
])
pocket4 = doc.addObject("PartDesign::Pocket", "Pocket003")
body.addObject(pocket4)
pocket4.Profile = sketch6
pocket4.Length = 5
pocket4.Reversed = True
doc.recompute()

fillet = doc.addObject("PartDesign::Fillet", "Fillet")
body.addObject(fillet)
fillet.Base = (pocket4, edges_at(pocket4, [(-166, -2.5, 7.5), (-166, -2.5, 87.5)]))
fillet.Radius = 5

sketch7 = doc.addObject("Sketcher::SketchObject", "Sketch006")
body.addObject(sketch7)
sketch7.AttachmentSupport = (doc.XZ_Plane, [""])
sketch7.MapMode = "FlatFace"
sketch7.AttachmentOffset = App.Placement(Vector(0, 0, 5), App.Rotation())
sketch7.addGeometry([
    Part.LineSegment(Vector(-171, 8, 0), Vector(-237, 8, 0)),
    Part.LineSegment(Vector(-237, 8, 0), Vector(-216, 20, 0)),
    Part.LineSegment(Vector(-216, 20, 0), Vector(-166, 20, 0)),
    Part.LineSegment(Vector(-166, 20, 0), Vector(-166, 12, 0)),
    Part.ArcOfCircle(Part.Circle(Vector(-171, 12, 0), Vector(0, 0, 1), 5), math.radians(-90), math.radians(0)),
    Part.LineSegment(Vector(-166, 82, 0), Vector(-166, 76, 0)),
    Part.LineSegment(Vector(-166, 76, 0), Vector(-216, 76, 0)),
    Part.LineSegment(Vector(-216, 76, 0), Vector(-237, 88, 0)),
    Part.LineSegment(Vector(-237, 88, 0), Vector(-171, 88, 0)),
    Part.ArcOfCircle(Part.Circle(Vector(-171, 82, 0), Vector(0, 0, 1), 5), math.radians(0), math.radians(90)),
], False)
sketch7.addConstraint([
    Sketcher.Constraint("Coincident", 0, 2, 1, 1),
    Sketcher.Constraint("Coincident", 1, 2, 2, 1),
    Sketcher.Constraint("Coincident", 2, 2, 3, 1),
    Sketcher.Constraint("Tangent", 3, 2, 4, 2),
    Sketcher.Constraint("Tangent", 4, 1, 0, 1),
    Sketcher.Constraint("Coincident", 5, 2, 6, 1),
    Sketcher.Constraint("Coincident", 6, 2, 7, 1),
    Sketcher.Constraint("Coincident", 7, 2, 8, 1),
    Sketcher.Constraint("Tangent", 8, 2, 9, 2),
    Sketcher.Constraint("Tangent", 9, 1, 5, 1),
    Sketcher.Constraint("Horizontal", 0),
    Sketcher.Constraint("Horizontal", 2),
    Sketcher.Constraint("Vertical", 3),
    Sketcher.Constraint("Vertical", 5),
    Sketcher.Constraint("Horizontal", 6),
    Sketcher.Constraint("Horizontal", 8),
    Sketcher.Constraint("Equal", 4, 9),
    Sketcher.Constraint("Vertical", 4, 3, 9, 3),
    Sketcher.Constraint("Vertical", 1, 2, 6, 2),
    Sketcher.Constraint("Vertical", 0, 2, 7, 2),
    Sketcher.Constraint("Equal", 3, 5),
    Sketcher.Constraint("Radius", 4, 5.0),
    Sketcher.Constraint("DistanceX", 2, 1, 2, 2, 50.0),
    Sketcher.Constraint("DistanceY", 3, 2, 3, 1, 7.0),
    Sketcher.Constraint("Angle", 1, Q("30 deg")),
    Sketcher.Constraint("DistanceX", 4, 3, -1, 1, 171.0),
    Sketcher.Constraint("DistanceY", 4, 3, 9, 3, 70.0),
    Sketcher.Constraint("DistanceY", -1, 1, 4, 3, 12.5),
])
pocket5 = doc.addObject("PartDesign::Pocket", "Pocket004")
body.addObject(pocket5)
pocket5.Profile = sketch7
pocket5.Length = 5
doc.recompute()

fillet2 = doc.addObject("PartDesign::Fillet", "Fillet001")
body.addObject(fillet2)
fillet2.Base = (pocket5, edges_at(pocket5, [
    (-216, -2.5, 19.5),
    (-166, -2.5, 19.5),
    (-216, -2.5, 75.5),
    (-166, -2.5, 75.5),
]))
fillet2.Radius = 5

doc.recompute()
